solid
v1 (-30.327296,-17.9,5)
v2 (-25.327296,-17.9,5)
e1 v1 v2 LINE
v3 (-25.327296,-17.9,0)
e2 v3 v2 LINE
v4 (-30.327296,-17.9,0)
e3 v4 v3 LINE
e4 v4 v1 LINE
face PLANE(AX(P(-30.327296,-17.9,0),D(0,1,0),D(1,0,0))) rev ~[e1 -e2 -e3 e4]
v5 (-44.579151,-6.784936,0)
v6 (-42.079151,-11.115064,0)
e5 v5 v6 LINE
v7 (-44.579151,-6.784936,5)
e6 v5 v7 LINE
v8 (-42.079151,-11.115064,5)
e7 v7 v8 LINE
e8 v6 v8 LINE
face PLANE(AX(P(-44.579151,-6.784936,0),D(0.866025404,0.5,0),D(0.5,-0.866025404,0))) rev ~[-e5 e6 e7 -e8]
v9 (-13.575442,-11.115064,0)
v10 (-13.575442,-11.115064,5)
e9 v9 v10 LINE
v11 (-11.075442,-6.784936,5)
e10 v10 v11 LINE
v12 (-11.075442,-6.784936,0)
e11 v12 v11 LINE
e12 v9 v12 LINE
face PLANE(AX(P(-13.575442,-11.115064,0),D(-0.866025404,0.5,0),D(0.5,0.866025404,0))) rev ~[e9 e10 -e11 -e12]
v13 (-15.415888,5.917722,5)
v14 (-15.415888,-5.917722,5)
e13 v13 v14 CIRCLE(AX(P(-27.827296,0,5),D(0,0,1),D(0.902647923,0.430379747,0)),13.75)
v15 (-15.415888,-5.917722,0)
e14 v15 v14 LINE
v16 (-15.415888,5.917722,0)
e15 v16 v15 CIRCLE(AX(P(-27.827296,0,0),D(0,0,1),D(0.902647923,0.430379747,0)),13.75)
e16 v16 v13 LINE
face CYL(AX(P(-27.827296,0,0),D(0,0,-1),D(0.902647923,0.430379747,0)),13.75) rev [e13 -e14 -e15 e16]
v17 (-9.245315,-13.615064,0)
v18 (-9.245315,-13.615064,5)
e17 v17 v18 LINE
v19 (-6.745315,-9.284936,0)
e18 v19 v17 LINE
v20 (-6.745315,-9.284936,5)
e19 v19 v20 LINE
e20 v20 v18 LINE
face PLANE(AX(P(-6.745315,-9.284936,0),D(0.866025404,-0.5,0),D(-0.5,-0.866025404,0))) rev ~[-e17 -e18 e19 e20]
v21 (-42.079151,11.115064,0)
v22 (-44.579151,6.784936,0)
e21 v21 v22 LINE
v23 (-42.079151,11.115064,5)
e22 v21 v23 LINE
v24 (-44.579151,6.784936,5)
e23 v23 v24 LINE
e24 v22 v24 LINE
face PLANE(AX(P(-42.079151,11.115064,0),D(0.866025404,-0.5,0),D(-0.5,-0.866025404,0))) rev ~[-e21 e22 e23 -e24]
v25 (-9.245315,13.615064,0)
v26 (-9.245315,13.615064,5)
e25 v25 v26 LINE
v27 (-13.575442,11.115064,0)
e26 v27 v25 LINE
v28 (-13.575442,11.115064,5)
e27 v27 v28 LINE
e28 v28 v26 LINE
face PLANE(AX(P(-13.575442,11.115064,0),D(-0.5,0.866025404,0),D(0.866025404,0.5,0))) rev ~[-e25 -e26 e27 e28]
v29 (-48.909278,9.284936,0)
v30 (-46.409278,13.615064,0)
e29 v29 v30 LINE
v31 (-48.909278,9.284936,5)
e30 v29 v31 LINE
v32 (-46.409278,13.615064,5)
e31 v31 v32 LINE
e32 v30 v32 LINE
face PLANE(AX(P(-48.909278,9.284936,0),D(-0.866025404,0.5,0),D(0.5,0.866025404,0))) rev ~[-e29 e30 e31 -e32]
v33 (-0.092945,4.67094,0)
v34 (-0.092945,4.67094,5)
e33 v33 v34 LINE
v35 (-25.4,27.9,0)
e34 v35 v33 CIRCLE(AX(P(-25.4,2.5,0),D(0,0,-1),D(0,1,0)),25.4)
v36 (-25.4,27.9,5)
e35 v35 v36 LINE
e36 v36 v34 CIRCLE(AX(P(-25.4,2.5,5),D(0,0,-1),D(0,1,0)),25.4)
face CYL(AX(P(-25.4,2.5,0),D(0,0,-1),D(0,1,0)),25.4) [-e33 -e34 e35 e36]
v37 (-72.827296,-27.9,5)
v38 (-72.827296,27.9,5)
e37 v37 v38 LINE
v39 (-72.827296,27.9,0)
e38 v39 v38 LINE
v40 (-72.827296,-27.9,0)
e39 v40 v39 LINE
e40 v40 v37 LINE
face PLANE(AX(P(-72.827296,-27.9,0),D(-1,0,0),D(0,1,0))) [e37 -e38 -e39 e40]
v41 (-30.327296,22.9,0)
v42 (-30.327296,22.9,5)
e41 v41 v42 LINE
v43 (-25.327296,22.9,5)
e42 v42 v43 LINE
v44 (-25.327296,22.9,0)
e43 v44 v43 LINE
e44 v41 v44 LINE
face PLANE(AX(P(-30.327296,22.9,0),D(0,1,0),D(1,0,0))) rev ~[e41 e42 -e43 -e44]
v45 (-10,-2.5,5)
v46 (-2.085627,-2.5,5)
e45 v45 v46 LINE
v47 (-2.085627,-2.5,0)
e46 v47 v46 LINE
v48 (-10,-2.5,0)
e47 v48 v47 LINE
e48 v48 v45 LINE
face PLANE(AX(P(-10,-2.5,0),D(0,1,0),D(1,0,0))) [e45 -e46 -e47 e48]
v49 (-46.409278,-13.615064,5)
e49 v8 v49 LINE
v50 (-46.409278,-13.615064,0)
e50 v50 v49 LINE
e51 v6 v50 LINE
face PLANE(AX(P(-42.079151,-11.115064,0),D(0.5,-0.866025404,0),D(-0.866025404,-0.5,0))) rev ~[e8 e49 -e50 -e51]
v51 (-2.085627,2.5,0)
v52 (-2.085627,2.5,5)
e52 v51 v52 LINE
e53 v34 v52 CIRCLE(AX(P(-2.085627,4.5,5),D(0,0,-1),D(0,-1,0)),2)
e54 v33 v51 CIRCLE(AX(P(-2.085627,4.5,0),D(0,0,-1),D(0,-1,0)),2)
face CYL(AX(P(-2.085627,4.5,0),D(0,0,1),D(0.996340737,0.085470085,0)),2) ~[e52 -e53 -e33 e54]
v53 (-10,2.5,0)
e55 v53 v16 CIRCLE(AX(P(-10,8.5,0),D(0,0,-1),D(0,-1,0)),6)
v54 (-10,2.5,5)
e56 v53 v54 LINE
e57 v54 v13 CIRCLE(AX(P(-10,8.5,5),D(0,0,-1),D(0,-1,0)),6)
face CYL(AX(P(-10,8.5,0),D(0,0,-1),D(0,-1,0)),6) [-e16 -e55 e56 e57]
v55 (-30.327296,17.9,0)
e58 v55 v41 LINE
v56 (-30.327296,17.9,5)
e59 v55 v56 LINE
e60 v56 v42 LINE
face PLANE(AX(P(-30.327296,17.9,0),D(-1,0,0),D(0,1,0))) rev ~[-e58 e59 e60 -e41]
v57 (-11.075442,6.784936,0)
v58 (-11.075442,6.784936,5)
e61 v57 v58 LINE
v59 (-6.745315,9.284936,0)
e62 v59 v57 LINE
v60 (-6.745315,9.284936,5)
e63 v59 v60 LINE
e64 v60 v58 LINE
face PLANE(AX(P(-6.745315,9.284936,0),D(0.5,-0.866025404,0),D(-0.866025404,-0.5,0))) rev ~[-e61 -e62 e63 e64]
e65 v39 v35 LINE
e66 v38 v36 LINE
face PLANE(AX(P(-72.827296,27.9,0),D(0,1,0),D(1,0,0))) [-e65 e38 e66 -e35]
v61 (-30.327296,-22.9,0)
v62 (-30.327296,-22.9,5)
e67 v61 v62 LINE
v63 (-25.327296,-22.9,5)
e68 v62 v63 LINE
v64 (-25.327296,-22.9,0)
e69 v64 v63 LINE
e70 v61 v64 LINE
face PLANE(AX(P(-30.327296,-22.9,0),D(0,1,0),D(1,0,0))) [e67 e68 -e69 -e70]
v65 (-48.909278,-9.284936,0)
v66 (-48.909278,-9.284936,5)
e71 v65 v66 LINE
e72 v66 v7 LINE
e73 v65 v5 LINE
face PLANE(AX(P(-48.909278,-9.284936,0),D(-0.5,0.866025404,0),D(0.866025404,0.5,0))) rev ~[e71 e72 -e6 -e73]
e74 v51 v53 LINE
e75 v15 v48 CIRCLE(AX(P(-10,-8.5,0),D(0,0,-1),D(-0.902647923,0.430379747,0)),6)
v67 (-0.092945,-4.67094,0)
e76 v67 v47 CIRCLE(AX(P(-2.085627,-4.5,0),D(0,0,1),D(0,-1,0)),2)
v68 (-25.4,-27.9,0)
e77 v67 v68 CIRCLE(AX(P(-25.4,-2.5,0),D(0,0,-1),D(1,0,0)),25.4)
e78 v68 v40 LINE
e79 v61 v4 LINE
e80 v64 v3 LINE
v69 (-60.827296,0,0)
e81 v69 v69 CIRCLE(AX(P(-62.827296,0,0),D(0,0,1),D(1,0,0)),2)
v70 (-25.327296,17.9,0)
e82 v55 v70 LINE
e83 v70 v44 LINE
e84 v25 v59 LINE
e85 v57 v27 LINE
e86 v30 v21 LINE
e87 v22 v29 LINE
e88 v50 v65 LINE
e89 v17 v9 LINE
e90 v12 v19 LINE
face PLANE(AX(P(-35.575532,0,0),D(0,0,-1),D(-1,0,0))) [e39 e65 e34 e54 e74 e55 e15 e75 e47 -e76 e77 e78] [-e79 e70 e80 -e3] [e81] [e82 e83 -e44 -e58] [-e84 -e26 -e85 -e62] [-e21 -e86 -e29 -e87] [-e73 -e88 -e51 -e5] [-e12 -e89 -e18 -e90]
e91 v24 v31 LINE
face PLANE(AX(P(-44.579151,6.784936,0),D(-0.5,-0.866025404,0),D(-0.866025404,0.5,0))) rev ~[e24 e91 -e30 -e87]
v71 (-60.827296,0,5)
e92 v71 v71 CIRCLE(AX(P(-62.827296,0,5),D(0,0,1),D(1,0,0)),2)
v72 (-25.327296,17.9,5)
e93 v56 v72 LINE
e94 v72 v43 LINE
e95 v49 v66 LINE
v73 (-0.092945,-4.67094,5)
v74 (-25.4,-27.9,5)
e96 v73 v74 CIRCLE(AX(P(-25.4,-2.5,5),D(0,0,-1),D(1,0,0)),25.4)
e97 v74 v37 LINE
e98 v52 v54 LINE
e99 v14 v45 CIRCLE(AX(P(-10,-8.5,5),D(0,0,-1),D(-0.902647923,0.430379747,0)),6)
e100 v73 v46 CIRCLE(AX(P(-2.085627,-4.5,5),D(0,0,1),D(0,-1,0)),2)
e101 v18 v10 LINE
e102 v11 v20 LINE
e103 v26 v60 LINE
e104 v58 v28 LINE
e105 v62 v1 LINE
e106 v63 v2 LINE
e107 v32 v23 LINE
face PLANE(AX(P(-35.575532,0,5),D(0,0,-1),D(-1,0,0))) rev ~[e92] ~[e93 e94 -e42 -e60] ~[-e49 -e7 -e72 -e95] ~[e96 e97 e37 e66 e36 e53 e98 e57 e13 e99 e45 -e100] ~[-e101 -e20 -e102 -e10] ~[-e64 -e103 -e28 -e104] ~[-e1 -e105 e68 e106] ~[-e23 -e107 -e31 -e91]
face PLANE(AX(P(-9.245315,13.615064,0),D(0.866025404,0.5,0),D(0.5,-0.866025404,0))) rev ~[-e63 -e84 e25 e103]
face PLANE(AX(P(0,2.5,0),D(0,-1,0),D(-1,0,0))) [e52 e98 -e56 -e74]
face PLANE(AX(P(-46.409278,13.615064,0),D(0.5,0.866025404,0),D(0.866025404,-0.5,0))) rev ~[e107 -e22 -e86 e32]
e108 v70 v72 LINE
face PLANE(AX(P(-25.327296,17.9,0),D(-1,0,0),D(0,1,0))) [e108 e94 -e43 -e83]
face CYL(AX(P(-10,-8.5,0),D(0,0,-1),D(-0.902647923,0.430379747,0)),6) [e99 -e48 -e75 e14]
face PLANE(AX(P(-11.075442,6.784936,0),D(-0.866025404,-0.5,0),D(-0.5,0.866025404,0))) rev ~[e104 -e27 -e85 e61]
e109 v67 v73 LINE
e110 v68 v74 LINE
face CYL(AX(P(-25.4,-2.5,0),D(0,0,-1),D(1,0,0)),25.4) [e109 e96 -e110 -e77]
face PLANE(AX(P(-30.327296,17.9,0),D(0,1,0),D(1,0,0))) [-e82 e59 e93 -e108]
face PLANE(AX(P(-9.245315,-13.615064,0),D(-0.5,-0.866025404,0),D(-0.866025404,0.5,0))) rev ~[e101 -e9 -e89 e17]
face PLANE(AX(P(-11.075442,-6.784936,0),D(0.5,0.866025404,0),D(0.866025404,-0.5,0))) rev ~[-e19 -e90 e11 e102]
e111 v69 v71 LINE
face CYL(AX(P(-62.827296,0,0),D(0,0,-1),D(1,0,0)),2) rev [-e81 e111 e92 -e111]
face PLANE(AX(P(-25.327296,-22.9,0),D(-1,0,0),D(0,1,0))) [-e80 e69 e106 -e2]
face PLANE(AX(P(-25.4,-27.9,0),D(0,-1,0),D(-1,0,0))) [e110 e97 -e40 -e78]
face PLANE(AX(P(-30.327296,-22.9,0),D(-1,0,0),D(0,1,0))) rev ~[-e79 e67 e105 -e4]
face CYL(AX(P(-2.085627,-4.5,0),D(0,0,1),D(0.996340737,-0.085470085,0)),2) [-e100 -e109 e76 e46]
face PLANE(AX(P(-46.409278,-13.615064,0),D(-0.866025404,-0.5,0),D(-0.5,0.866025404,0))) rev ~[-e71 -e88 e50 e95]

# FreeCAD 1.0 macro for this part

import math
import FreeCAD as App
import Part
import Sketcher
from FreeCAD import Vector
Q = App.Units.Quantity


def edges_at(feature, points):
    """Names of the edges that pass closest to the given points."""
    edges = feature.Shape.Edges
    near = lambda p: min(range(len(edges)), key=lambda i: edges[i].distToShape(Part.Vertex(*p))[0])
    return sorted({f"Edge{near(p) + 1}" for p in points})


def add_polygon(sketch, points):
    """Adds a closed chain of lines whose ends are joined by coincident constraints."""
    first, n = sketch.GeometryCount, len(points)
    for a, b in zip(points, points[1:] + points[:1]):
        sketch.addGeometry(Part.LineSegment(App.Vector(*a, 0), App.Vector(*b, 0)), False)
    for i in range(n):
        sketch.addConstraint(Sketcher.Constraint("Coincident", first + i, 2, first + (i + 1) % n, 1))

doc = App.newDocument("Part")
params = doc.addObject("Spreadsheet::Sheet", "Params")
for row, (alias, value) in enumerate([
    ("sketch1_diameter", "4 mm"),
    ("sketch1_radius", "6 mm"),
    ("sketch1_radius2", "25.4 mm"),
    ("sketch1_width", "10 mm"),
    ("sketch1_width2", "5 mm"),
    ("pad1_length", "5 mm"),
    ("fillet_radius", "2 mm"),
], start=1):
    params.set(f"A{row}", alias)
    params.set(f"B{row}", "=" + value)
    params.setAlias(f"B{row}", alias)

body = doc.addObject("PartDesign::Body", "Body")

# Sketch on XY plane
sketch1 = body.newObject("Sketcher::SketchObject", "Sketch")
sketch1.AttachmentSupport = (doc.getObject("XY_Plane"), [""])
sketch1.MapMode = "FlatFace"
sketch1.addGeometry(Part.LineSegment(Vector(-72.827296, 27.9, 0), Vector(-72.827296, -27.9, 0)), False)  # 0
sketch1.addGeometry(Part.LineSegment(Vector(-72.827296, -27.9, 0), Vector(-25.4, -27.9, 0)), False)  # 1
sketch1.addGeometry(Part.ArcOfCircle(Part.Circle(Vector(-25.4, -2.5, 0), Vector(0, 0, 1), 25.4), math.radians(-90), math.radians(0)), False)  # 2
sketch1.addGeometry(Part.LineSegment(Vector(0, -2.5, 0), Vector(-10, -2.5, 0)), False)  # 3
sketch1.addGeometry(Part.ArcOfCircle(Part.Circle(Vector(-10, -8.5, 0), Vector(0, 0, 1), 6), math.radians(90), math.radians(154.508338)), False)  # 4
sketch1.addGeometry(Part.ArcOfCircle(Part.Circle(Vector(-27.827296, 0, 0), Vector(0, 0, 1), 13.75), math.radians(25.491662), math.radians(334.508338)), False)  # 5
sketch1.addGeometry(Part.ArcOfCircle(Part.Circle(Vector(-10, 8.5, 0), Vector(0, 0, 1), 6), math.radians(-154.508338), math.radians(-90)), False)  # 6
sketch1.addGeometry(Part.LineSegment(Vector(-10, 2.5, 0), Vector(0, 2.5, 0)), False)  # 7
sketch1.addGeometry(Part.ArcOfCircle(Part.Circle(Vector(-25.4, 2.5, 0), Vector(0, 0, 1), 25.4), math.radians(0), math.radians(90)), False)  # 8
sketch1.addGeometry(Part.LineSegment(Vector(-25.4, 27.9, 0), Vector(-72.827296, 27.9, 0)), False)  # 9
add_polygon(sketch1, [(-30.327296, -22.9), (-30.327296, -17.9), (-25.327296, -17.9), (-25.327296, -22.9)])  # lines 10-13
add_polygon(sketch1, [(-6.745315, -9.284936), (-9.245315, -13.615064), (-13.575442, -11.115064), (-11.075442, -6.784936)])  # lines 14-17
add_polygon(sketch1, [(-46.409278, -13.615064), (-48.909278, -9.284936), (-44.579151, -6.784936), (-42.079151, -11.115064)])  # lines 18-21
add_polygon(sketch1, [(-9.245315, 13.615064), (-6.745315, 9.284936), (-11.075442, 6.784936), (-13.575442, 11.115064)])  # lines 22-25
add_polygon(sketch1, [(-30.327296, 17.9), (-30.327296, 22.9), (-25.327296, 22.9), (-25.327296, 17.9)])  # lines 26-29
add_polygon(sketch1, [(-48.909278, 9.284936), (-46.409278, 13.615064), (-42.079151, 11.115064), (-44.579151, 6.784936)])  # lines 30-33
sketch1.addGeometry(Part.Circle(Vector(-62.827296, 0, 0), Vector(0, 0, 1), 2), False)  # 34
sketch1.addConstraint([
    Sketcher.Constraint("Coincident", 0, 2, 1, 1),
    Sketcher.Constraint("Tangent", 1, 2, 2, 1),
    Sketcher.Constraint("Coincident", 2, 2, 3, 1),
    Sketcher.Constraint("Tangent", 3, 2, 4, 1),
    Sketcher.Constraint("Tangent", 4, 2, 5, 2),
    Sketcher.Constraint("Tangent", 5, 1, 6, 1),
    Sketcher.Constraint("Tangent", 6, 2, 7, 1),
    Sketcher.Constraint("Coincident", 7, 2, 8, 1),
    Sketcher.Constraint("Tangent", 8, 2, 9, 1),
    Sketcher.Constraint("Coincident", 9, 2, 0, 1),
    Sketcher.Constraint("Vertical", 0),
    Sketcher.Constraint("Horizontal", 1),
    Sketcher.Constraint("Horizontal", 3),
    Sketcher.Constraint("Horizontal", 7),
    Sketcher.Constraint("Horizontal", 9),
    Sketcher.Constraint("Vertical", 10),
    Sketcher.Constraint("Horizontal", 11),
    Sketcher.Constraint("Vertical", 12),
    Sketcher.Constraint("Horizontal", 13),
    Sketcher.Constraint("Vertical", 26),
    Sketcher.Constraint("Horizontal", 27),
    Sketcher.Constraint("Vertical", 28),
    Sketcher.Constraint("Horizontal", 29),
    Sketcher.Constraint("Equal", 4, 6),
    Sketcher.Constraint("Equal", 2, 8),
    Sketcher.Constraint("Symmetric", 2, 2, 7, 2, -1, 1),
    Sketcher.Constraint("Symmetric", 2, 3, 8, 3, -1),
    Sketcher.Constraint("Symmetric", 17, 2, 22, 2, -1),
    Sketcher.Constraint("Symmetric", 16, 2, 23, 2, -1),
    Sketcher.Constraint("Symmetric", 15, 2, 24, 2, -1),
    Sketcher.Constraint("Symmetric", 14, 2, 25, 2, -1),
    Sketcher.Constraint("Symmetric", 13, 2, 26, 2, -1),
    Sketcher.Constraint("Symmetric", 11, 2, 28, 2, -1),
    Sketcher.Constraint("Symmetric", 21, 2, 30, 2, -1),
    Sketcher.Constraint("Symmetric", 20, 2, 31, 2, -1),
    Sketcher.Constraint("Symmetric", 19, 2, 32, 2, -1),
    Sketcher.Constraint("Symmetric", 18, 2, 33, 2, -1),
    Sketcher.Constraint("PointOnObject", 5, 3, -1),
    Sketcher.Constraint("PointOnObject", 34, 3, -1),
    Sketcher.Constraint("Perpendicular", 14, 15),
    Sketcher.Constraint("Perpendicular", 15, 16),
    Sketcher.Constraint("Perpendicular", 16, 17),
    Sketcher.Constraint("Perpendicular", 18, 19),
    Sketcher.Constraint("Perpendicular", 19, 20),
    Sketcher.Constraint("Perpendicular", 20, 21),
    Sketcher.Constraint("Perpendicular", 21, 22),
    Sketcher.Constraint("Horizontal", 8, 3, 6, 2),
    Sketcher.Constraint("Horizontal", 17, 2, 18, 2),
    Sketcher.Constraint("Horizontal", 16, 2, 19, 2),
    Sketcher.Constraint("Horizontal", 15, 2, 20, 2),
    Sketcher.Constraint("Equal", 29, 10),
    Sketcher.Constraint("Equal", 14, 15),
    Sketcher.Constraint("Diameter", 34, Q("4 mm")),
    Sketcher.Constraint("Radius", 4, Q("6 mm")),
    Sketcher.Constraint("Radius", 2, Q("25.4 mm")),
    Sketcher.Constraint("DistanceX", 3, 2, 3, 1, Q("10 mm")),
    Sketcher.Constraint("DistanceX", 11, 1, 11, 2, Q("5 mm")),
    Sketcher.Constraint("Angle", 14, Q("-120 deg")),
    Sketcher.Constraint("Radius", 5, Q("13.75 mm")),
    Sketcher.Constraint("Distance", 14, Q("5 mm")),
    Sketcher.Constraint("DistanceY", 0, 2, 0, 1, Q("55.8 mm")),
    Sketcher.Constraint("DistanceX", 34, 3, 5, 3, Q("35 mm")),
    Sketcher.Constraint("DistanceX", 0, 2, 34, 3, Q("10 mm")),
    Sketcher.Constraint("DistanceY", 1, 2, 10, 2, Q("10 mm")),
    Sketcher.Constraint("DistanceX", 10, 2, 5, 3, Q("2.5 mm")),
    Sketcher.Constraint("DistanceY", 19, 2, 30, 2, Q("20.4 mm")),
    Sketcher.Constraint("DistanceX", 15, 2, -1, 1, Q("13.575442 mm")),
    Sketcher.Constraint("DistanceX", 18, 2, -1, 1, Q("48.909278 mm")),
])
sketch1.setExpression("Constraints[76]", "Params.sketch1_diameter")
sketch1.setExpression("Constraints[77]", "Params.sketch1_radius")
sketch1.setExpression("Constraints[78]", "Params.sketch1_radius2")
sketch1.setExpression("Constraints[79]", "Params.sketch1_width")
sketch1.setExpression("Constraints[80]", "Params.sketch1_width2")
pad1 = body.newObject("PartDesign::Pad", "Pad")
pad1.Profile = sketch1
pad1.setExpression("Length", "Params.pad1_length")
doc.recompute()

fillet = body.newObject("PartDesign::Fillet", "Fillet")
fillet.Base = (pad1, edges_at(pad1, [(0, 2.5, 2.5), (0, -2.5, 2.5)]))
fillet.setExpression("Radius", "Params.fillet_radius")

doc.recompute()
